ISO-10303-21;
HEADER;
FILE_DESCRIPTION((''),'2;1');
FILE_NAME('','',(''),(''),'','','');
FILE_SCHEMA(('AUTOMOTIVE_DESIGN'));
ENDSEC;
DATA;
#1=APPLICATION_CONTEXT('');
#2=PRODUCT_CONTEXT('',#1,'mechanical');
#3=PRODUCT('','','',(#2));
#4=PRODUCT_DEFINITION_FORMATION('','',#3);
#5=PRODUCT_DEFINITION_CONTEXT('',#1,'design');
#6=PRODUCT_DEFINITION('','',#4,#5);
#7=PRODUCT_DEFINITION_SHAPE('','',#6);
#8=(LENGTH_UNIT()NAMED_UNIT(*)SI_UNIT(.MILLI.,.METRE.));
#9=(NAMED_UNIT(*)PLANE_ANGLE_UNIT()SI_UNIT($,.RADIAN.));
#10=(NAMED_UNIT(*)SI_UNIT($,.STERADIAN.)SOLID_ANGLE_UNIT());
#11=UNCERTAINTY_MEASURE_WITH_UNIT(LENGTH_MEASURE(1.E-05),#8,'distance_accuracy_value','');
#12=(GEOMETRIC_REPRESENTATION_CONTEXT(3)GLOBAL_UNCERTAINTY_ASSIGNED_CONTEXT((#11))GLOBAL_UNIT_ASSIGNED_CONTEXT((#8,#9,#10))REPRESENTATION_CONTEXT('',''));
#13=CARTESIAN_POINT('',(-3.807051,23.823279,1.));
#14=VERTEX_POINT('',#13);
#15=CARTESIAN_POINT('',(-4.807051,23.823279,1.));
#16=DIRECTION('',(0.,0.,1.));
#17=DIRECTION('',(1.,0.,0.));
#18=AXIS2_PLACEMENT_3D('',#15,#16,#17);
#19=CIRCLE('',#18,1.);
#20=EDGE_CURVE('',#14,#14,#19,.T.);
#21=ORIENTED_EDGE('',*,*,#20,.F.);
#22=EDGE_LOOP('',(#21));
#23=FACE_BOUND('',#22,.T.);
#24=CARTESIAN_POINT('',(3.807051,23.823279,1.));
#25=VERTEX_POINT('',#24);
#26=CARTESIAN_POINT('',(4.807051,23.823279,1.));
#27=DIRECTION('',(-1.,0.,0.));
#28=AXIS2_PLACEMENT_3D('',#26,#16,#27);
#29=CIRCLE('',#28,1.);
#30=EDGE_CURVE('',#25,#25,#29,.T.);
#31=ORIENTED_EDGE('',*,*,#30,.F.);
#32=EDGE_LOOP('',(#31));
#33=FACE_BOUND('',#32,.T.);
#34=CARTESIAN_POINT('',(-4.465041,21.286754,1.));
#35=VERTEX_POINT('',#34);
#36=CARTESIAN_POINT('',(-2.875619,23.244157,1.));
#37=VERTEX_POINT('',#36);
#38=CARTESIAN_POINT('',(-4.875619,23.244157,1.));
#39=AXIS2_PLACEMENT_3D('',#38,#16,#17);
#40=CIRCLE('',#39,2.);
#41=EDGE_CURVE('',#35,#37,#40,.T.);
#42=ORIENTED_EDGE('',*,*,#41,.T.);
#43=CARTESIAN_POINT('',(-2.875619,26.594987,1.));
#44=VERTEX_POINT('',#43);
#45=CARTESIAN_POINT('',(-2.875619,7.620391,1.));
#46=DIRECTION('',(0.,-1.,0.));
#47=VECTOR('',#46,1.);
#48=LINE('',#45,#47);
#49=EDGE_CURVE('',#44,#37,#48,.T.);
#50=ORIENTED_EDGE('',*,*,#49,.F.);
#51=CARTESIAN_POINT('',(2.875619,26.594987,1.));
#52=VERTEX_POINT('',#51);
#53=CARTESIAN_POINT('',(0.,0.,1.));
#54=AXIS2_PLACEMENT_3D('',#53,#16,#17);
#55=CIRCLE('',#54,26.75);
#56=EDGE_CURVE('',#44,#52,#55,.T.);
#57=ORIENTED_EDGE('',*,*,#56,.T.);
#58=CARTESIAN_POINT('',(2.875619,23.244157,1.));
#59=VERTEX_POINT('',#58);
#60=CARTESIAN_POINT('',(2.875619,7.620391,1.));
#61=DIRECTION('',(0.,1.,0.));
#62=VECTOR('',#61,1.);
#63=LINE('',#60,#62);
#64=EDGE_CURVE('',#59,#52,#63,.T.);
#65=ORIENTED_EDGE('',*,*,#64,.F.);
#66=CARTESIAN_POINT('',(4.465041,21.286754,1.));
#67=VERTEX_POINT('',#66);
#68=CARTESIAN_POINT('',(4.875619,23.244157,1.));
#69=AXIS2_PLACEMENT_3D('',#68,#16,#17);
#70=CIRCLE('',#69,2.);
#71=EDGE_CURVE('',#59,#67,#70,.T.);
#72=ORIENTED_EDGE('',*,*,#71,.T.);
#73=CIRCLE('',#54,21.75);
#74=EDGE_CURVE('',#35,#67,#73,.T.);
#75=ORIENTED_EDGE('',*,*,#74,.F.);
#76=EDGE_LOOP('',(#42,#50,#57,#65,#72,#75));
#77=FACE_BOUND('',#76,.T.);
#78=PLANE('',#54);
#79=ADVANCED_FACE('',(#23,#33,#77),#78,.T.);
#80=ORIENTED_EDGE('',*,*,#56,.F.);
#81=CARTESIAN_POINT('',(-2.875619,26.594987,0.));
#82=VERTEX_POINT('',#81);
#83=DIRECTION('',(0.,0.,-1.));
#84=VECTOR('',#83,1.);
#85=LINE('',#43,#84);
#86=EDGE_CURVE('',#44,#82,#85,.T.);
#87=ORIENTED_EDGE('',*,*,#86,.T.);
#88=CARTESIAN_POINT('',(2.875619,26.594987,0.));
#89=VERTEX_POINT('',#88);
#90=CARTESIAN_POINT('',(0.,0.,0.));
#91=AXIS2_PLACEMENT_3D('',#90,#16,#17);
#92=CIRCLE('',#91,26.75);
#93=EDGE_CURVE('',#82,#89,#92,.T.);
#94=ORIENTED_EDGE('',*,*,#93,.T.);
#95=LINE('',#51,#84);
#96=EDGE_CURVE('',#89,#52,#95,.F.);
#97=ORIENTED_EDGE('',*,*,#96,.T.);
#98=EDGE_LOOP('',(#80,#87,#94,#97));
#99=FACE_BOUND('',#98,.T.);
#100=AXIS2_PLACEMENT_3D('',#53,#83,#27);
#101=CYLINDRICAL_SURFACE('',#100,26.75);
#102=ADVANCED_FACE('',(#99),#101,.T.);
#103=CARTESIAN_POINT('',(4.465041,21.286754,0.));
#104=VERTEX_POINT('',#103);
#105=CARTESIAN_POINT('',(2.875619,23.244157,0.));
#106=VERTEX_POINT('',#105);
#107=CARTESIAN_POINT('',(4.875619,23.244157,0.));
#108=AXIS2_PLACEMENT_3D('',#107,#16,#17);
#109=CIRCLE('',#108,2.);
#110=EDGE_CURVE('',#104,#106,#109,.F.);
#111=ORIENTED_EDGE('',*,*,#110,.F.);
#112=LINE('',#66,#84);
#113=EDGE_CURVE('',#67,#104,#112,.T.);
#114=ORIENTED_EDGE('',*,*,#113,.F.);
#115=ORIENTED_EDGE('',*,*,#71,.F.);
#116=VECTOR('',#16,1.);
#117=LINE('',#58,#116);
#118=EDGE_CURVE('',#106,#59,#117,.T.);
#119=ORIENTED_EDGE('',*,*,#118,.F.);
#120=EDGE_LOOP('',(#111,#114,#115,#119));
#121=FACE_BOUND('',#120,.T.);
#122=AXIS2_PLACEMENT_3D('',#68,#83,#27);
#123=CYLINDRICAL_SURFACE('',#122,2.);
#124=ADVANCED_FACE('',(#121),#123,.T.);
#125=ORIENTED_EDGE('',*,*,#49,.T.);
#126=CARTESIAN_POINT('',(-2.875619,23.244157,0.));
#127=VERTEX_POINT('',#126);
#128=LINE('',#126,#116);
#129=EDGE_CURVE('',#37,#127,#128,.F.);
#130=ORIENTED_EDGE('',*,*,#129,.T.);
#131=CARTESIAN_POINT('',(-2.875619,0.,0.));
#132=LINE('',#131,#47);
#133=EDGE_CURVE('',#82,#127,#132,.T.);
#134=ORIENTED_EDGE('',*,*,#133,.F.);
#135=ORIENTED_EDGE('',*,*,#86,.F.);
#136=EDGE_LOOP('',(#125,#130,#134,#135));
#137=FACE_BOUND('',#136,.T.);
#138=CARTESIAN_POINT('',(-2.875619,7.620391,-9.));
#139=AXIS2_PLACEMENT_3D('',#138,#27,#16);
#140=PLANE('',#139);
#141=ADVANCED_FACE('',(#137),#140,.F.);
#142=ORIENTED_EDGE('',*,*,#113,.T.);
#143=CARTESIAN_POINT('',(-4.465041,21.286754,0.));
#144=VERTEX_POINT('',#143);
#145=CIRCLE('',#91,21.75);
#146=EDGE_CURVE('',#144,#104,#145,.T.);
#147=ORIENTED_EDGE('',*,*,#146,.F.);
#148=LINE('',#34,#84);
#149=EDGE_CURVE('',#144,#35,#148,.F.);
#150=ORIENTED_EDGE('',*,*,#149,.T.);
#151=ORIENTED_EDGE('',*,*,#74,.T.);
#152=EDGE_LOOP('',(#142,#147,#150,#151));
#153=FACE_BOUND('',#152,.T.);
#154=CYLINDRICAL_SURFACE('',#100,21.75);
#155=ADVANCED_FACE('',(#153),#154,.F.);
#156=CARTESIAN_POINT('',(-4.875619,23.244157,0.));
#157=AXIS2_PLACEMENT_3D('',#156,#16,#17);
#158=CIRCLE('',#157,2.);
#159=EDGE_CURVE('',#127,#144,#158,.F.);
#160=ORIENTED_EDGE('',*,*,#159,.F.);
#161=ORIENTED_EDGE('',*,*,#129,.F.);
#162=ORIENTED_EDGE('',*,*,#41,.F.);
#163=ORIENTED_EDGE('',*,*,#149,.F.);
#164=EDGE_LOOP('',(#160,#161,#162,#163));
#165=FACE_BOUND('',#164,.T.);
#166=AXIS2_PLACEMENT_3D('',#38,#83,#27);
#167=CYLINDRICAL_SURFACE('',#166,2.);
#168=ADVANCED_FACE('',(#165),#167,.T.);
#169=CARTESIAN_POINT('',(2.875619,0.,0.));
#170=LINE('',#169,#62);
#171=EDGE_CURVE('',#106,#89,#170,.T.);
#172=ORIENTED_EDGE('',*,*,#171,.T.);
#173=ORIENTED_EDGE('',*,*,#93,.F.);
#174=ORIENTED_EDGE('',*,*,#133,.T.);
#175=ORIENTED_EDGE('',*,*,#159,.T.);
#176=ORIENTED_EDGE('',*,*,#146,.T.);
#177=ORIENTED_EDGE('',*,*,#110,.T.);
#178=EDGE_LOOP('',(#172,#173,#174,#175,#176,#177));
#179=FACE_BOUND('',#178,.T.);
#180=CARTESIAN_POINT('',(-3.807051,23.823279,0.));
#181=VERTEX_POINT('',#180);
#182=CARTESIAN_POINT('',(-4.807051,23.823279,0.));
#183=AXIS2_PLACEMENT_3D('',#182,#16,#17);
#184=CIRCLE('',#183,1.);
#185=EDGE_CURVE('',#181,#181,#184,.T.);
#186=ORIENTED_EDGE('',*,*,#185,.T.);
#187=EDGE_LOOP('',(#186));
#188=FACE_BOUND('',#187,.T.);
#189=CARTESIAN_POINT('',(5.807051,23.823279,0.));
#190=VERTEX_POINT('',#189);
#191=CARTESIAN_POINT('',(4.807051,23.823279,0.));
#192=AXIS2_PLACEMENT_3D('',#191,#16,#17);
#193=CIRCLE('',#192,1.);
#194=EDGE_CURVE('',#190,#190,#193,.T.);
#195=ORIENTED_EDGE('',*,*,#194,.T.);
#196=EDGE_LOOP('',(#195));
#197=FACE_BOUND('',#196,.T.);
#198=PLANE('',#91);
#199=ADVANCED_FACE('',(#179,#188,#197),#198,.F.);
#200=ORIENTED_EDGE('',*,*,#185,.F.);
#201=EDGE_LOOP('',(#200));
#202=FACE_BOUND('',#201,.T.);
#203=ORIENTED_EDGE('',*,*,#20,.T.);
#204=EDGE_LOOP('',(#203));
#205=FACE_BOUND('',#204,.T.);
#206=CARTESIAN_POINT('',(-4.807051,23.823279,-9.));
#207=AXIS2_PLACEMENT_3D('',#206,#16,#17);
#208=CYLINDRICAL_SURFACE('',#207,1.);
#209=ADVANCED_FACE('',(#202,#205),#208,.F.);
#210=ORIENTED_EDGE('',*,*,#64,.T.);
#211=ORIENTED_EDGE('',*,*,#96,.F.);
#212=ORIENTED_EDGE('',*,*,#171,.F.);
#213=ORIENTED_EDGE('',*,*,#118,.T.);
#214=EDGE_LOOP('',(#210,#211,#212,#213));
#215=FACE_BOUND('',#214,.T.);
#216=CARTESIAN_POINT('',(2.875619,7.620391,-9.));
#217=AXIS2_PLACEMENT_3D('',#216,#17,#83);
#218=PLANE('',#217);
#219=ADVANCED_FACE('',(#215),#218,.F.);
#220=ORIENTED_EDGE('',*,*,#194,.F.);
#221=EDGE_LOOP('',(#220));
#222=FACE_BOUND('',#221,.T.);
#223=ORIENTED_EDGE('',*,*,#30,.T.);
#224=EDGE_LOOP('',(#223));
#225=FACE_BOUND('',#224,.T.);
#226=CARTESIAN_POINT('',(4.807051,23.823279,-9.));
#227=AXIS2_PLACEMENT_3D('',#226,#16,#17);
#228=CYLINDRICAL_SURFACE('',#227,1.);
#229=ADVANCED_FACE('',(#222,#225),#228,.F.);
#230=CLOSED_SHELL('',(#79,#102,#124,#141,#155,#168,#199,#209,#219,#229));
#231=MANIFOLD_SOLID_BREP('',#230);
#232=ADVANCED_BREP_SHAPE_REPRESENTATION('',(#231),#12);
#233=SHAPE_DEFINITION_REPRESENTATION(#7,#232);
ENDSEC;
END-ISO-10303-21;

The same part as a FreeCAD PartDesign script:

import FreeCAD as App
import Part
import Sketcher

V = App.Vector
Q = App.Units.Quantity


def edges_at(feature, points):
    """Names of the edges that pass closest to the given points."""
    edges = feature.Shape.Edges
    near = lambda p: min(range(len(edges)), key=lambda i: edges[i].distToShape(Part.Vertex(*p))[0])
    return sorted({f"Edge{near(p) + 1}" for p in points})

doc = App.newDocument("Part")
body = doc.addObject("PartDesign::Body", "Body")

# Sketch on XY plane
sketch1 = doc.addObject("Sketcher::SketchObject", "Sketch")
body.addObject(sketch1)
sketch1.AttachmentSupport = (doc.XY_Plane, [""])
sketch1.MapMode = "FlatFace"
sketch1.addGeometry(Part.Circle(V(0, 0, 0), V(0, 0, 1), 27), False)
sketch1.addGeometry(Part.Circle(V(0, 0, 0), V(0, 0, 1), 22), False)
sketch1.addConstraint(Sketcher.Constraint("Coincident", 0, 3, -1, 1))
sketch1.addConstraint(Sketcher.Constraint("Coincident", 1, 3, -1, 1))
sketch1.addConstraint(Sketcher.Constraint("Diameter", 0, Q("53.5 mm")))
sketch1.addConstraint(Sketcher.Constraint("Diameter", 1, Q("43.5 mm")))
pad1 = doc.addObject("PartDesign::Pad", "Pad")
body.addObject(pad1)
pad1.Profile = sketch1
pad1.Length = 1

# Sketch on XY plane
sketch2 = doc.addObject("Sketcher::SketchObject", "Sketch001")
body.addObject(sketch2)
sketch2.AttachmentSupport = (doc.XY_Plane, [""])
sketch2.MapMode = "FlatFace"
sketch2.AttachmentOffset = App.Placement(V(0, 0, 1), App.Rotation())
sketch2.addGeometry(Part.LineSegment(V(-3, 28, 0), V(-3, 8, 0)), False)
sketch2.addGeometry(Part.LineSegment(V(-3, 8, 0), V(3, 8, 0)), False)
sketch2.addGeometry(Part.LineSegment(V(3, 8, 0), V(3, 28, 0)), False)
sketch2.addGeometry(Part.LineSegment(V(3, 28, 0), V(-3, 28, 0)), False)
sketch2.addConstraint(Sketcher.Constraint("Coincident", 0, 2, 1, 1))
sketch2.addConstraint(Sketcher.Constraint("Coincident", 1, 2, 2, 1))
sketch2.addConstraint(Sketcher.Constraint("Coincident", 2, 2, 3, 1))
sketch2.addConstraint(Sketcher.Constraint("Coincident", 3, 2, 0, 1))
sketch2.addConstraint(Sketcher.Constraint("Vertical", 0))
sketch2.addConstraint(Sketcher.Constraint("Horizontal", 1))
sketch2.addConstraint(Sketcher.Constraint("Vertical", 2))
sketch2.addConstraint(Sketcher.Constraint("Horizontal", 3))
sketch2.addConstraint(Sketcher.Constraint("DistanceX", 1, 1, 1, 2, Q("5.751239 mm")))
sketch2.addConstraint(Sketcher.Constraint("DistanceY", 0, 2, 0, 1, Q("20.70446 mm")))
sketch2.addConstraint(Sketcher.Constraint("DistanceX", 0, 2, -1, 1, Q("2.875619 mm")))
sketch2.addConstraint(Sketcher.Constraint("DistanceY", -1, 1, 0, 2, Q("7.620391 mm")))
pocket1 = doc.addObject("PartDesign::Pocket", "Pocket")
body.addObject(pocket1)
pocket1.Profile = sketch2
pocket1.Length = 10
doc.recompute()

fillet = doc.addObject("PartDesign::Fillet", "Fillet")
body.addObject(fillet)
fillet.Base = (pocket1, edges_at(pocket1, [(2.876, 21.559, 0.5), (-2.876, 21.559, 0.5)]))
fillet.Radius = 2

# Sketch on XY plane
sketch3 = doc.addObject("Sketcher::SketchObject", "Sketch002")
body.addObject(sketch3)
sketch3.AttachmentSupport = (doc.XY_Plane, [""])
sketch3.MapMode = "FlatFace"
sketch3.AttachmentOffset = App.Placement(V(0, 0, 1), App.Rotation())
sketch3.addGeometry(Part.Circle(V(-4.8, 23.8, 0), V(0, 0, 1), 1), False)
sketch3.addGeometry(Part.Circle(V(4.8, 23.8, 0), V(0, 0, 1), 1), False)
sketch3.addConstraint(Sketcher.Constraint("Equal", 0, 1))
sketch3.addConstraint(Sketcher.Constraint("Symmetric", 0, 3, 1, 3, -2))
sketch3.addConstraint(Sketcher.Constraint("Diameter", 0, Q("2 mm")))
sketch3.addConstraint(Sketcher.Constraint("DistanceX", 0, 3, 1, 3, Q("9.614102 mm")))
sketch3.addConstraint(Sketcher.Constraint("DistanceY", -1, 1, 0, 3, Q("23.823279 mm")))
pocket2 = doc.addObject("PartDesign::Pocket", "Pocket001")
body.addObject(pocket2)
pocket2.Profile = sketch3
pocket2.Length = 10

doc.recompute()
